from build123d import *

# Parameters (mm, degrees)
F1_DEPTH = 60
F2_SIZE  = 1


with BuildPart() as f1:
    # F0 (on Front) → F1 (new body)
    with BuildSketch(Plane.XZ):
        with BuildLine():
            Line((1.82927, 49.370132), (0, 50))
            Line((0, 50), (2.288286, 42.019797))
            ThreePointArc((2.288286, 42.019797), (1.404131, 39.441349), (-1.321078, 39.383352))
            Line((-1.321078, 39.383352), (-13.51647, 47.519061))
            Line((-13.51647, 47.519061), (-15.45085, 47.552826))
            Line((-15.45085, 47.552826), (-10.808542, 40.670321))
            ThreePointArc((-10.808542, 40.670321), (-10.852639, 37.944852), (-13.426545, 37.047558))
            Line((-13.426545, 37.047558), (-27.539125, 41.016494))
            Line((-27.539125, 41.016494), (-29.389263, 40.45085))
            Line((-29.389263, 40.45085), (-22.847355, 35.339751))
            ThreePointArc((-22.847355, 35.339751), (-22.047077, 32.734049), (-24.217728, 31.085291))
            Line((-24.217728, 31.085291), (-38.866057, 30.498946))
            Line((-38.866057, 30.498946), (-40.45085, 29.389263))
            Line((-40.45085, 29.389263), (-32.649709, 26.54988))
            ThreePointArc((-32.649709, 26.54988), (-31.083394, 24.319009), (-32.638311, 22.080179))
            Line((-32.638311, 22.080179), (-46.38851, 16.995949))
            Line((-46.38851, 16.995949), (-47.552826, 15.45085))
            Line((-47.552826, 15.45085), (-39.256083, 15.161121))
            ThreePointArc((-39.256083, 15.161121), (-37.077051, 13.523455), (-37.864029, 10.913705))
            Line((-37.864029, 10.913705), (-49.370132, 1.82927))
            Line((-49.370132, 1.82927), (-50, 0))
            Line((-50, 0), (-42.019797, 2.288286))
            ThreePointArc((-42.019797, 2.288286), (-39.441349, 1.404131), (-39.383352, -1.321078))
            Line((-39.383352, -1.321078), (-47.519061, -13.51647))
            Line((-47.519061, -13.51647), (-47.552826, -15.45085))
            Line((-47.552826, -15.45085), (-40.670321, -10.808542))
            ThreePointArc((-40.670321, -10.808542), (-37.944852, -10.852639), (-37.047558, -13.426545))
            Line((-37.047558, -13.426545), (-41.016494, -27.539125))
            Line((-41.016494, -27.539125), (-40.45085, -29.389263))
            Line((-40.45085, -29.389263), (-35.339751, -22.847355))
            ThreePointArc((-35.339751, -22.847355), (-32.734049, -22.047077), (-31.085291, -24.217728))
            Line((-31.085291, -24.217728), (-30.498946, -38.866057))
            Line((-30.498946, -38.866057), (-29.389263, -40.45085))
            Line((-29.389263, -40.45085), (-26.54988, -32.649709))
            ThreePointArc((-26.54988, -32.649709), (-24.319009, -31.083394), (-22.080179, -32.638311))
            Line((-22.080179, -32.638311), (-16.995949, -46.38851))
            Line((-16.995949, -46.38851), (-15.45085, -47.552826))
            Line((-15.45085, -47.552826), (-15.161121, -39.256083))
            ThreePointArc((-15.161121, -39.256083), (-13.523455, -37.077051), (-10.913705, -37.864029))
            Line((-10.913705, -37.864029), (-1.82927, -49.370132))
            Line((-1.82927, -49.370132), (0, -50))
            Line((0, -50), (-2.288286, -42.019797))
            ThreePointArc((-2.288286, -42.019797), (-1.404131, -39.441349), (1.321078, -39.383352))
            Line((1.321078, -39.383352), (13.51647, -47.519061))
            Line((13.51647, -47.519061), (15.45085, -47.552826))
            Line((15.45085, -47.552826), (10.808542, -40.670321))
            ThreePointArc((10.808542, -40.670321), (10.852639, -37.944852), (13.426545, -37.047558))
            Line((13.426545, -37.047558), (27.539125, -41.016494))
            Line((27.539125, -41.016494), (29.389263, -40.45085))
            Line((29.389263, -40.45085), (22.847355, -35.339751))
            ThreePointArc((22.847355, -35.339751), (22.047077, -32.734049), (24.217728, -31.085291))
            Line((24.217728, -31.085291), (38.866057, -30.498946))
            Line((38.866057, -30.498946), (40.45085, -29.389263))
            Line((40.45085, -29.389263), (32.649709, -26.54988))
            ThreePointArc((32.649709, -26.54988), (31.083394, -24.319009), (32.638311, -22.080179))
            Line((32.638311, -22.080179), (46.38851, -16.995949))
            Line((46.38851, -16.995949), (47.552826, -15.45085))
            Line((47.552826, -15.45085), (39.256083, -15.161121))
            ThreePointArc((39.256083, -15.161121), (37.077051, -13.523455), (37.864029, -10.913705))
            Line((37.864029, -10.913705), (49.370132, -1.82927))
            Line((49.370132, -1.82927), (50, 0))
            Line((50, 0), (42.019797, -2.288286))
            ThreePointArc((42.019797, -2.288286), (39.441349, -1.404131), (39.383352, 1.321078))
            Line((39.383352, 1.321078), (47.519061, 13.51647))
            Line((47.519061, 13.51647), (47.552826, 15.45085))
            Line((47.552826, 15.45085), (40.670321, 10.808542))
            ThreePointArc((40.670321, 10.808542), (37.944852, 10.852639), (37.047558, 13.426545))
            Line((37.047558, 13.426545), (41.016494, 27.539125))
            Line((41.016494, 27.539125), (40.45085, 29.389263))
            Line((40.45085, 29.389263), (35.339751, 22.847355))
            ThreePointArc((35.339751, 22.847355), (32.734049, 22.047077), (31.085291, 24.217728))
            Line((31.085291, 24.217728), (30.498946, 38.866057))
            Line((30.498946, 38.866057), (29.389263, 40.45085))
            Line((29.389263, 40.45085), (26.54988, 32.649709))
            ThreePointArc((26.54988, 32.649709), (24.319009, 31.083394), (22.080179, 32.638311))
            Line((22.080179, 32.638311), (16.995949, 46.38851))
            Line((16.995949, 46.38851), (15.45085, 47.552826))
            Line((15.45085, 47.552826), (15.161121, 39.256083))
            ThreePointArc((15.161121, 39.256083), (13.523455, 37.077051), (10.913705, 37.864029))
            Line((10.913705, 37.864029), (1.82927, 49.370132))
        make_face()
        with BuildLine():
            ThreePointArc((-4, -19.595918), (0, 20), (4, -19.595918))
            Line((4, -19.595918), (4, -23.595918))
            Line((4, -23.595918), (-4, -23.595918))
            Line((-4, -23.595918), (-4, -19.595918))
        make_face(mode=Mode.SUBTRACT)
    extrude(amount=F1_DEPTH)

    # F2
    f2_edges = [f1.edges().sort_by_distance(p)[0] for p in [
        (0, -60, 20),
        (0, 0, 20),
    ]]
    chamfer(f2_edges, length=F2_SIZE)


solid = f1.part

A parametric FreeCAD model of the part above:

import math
import FreeCAD as App
import Part
import Sketcher
Q = App.Units.Quantity


def edges_at(feature, points):
    """Names of the edges that pass closest to the given points."""
    edges = feature.Shape.Edges
    near = lambda p: min(range(len(edges)), key=lambda i: edges[i].distToShape(Part.Vertex(*p))[0])
    return sorted({f"Edge{near(p) + 1}" for p in points})

doc = App.newDocument("Part")
body = doc.addObject("PartDesign::Body", "Body")

sketch1 = body.newObject("Sketcher::SketchObject", "Sketch")
sketch1.AttachmentSupport = (doc.getObject("XZ_Plane"), [""])
sketch1.MapMode = "FlatFace"
sketch1.addGeometry(Part.LineSegment(App.Vector(1.8, 49.4, 0), App.Vector(0, 50, 0)), False)
sketch1.addGeometry(Part.LineSegment(App.Vector(0, 50, 0), App.Vector(2.3, 42, 0)), False)
sketch1.addGeometry(Part.ArcOfCircle(Part.Circle(App.Vector(0, 41.4, 0), App.Vector(0, 0, 1), 2.4), math.radians(-124), math.radians(16)), False)
sketch1.addGeometry(Part.LineSegment(App.Vector(-1.3, 39.4, 0), App.Vector(-13.5, 47.5, 0)), False)
sketch1.addGeometry(Part.LineSegment(App.Vector(-13.5, 47.5, 0), App.Vector(-15.5, 47.6, 0)), False)
sketch1.addGeometry(Part.LineSegment(App.Vector(-15.5, 47.6, 0), App.Vector(-10.8, 40.7, 0)), False)
sketch1.addGeometry(Part.ArcOfCircle(Part.Circle(App.Vector(-12.8, 39.3, 0), App.Vector(0, 0, 1), 2.4), math.radians(-106), math.radians(34)), False)
sketch1.addGeometry(Part.LineSegment(App.Vector(-13.4, 37, 0), App.Vector(-27.5, 41, 0)), False)
sketch1.addGeometry(Part.LineSegment(App.Vector(-27.5, 41, 0), App.Vector(-29.4, 40.5, 0)), False)
sketch1.addGeometry(Part.LineSegment(App.Vector(-29.4, 40.5, 0), App.Vector(-22.8, 35.3, 0)), False)
sketch1.addGeometry(Part.ArcOfCircle(Part.Circle(App.Vector(-24.3, 33.5, 0), App.Vector(0, 0, 1), 2.4), math.radians(-88), math.radians(52)), False)
sketch1.addGeometry(Part.LineSegment(App.Vector(-24.2, 31.1, 0), App.Vector(-38.9, 30.5, 0)), False)
sketch1.addGeometry(Part.LineSegment(App.Vector(-38.9, 30.5, 0), App.Vector(-40.5, 29.4, 0)), False)
sketch1.addGeometry(Part.LineSegment(App.Vector(-40.5, 29.4, 0), App.Vector(-32.6, 26.5, 0)), False)
sketch1.addGeometry(Part.ArcOfCircle(Part.Circle(App.Vector(-33.5, 24.3, 0), App.Vector(0, 0, 1), 2.4), math.radians(-70), math.radians(70)), False)
sketch1.addGeometry(Part.LineSegment(App.Vector(-32.6, 22.1, 0), App.Vector(-46.4, 17, 0)), False)
sketch1.addGeometry(Part.LineSegment(App.Vector(-46.4, 17, 0), App.Vector(-47.6, 15.5, 0)), False)
sketch1.addGeometry(Part.LineSegment(App.Vector(-47.6, 15.5, 0), App.Vector(-39.3, 15.2, 0)), False)
sketch1.addGeometry(Part.ArcOfCircle(Part.Circle(App.Vector(-39.3, 12.8, 0), App.Vector(0, 0, 1), 2.4), math.radians(-52), math.radians(88)), False)
sketch1.addGeometry(Part.LineSegment(App.Vector(-37.9, 10.9, 0), App.Vector(-49.4, 1.8, 0)), False)
sketch1.addGeometry(Part.LineSegment(App.Vector(-49.4, 1.8, 0), App.Vector(-50, 0, 0)), False)
sketch1.addGeometry(Part.LineSegment(App.Vector(-50, 0, 0), App.Vector(-42, 2.3, 0)), False)
sketch1.addGeometry(Part.ArcOfCircle(Part.Circle(App.Vector(-41.4, 0, 0), App.Vector(0, 0, 1), 2.4), math.radians(-34), math.radians(106)), False)
sketch1.addGeometry(Part.LineSegment(App.Vector(-39.4, -1.3, 0), App.Vector(-47.5, -13.5, 0)), False)
sketch1.addGeometry(Part.LineSegment(App.Vector(-47.5, -13.5, 0), App.Vector(-47.6, -15.5, 0)), False)
sketch1.addGeometry(Part.LineSegment(App.Vector(-47.6, -15.5, 0), App.Vector(-40.7, -10.8, 0)), False)
sketch1.addGeometry(Part.ArcOfCircle(Part.Circle(App.Vector(-39.3, -12.8, 0), App.Vector(0, 0, 1), 2.4), math.radians(-16), math.radians(124)), False)
sketch1.addGeometry(Part.LineSegment(App.Vector(-37, -13.4, 0), App.Vector(-41, -27.5, 0)), False)
sketch1.addGeometry(Part.LineSegment(App.Vector(-41, -27.5, 0), App.Vector(-40.5, -29.4, 0)), False)
sketch1.addGeometry(Part.LineSegment(App.Vector(-40.5, -29.4, 0), App.Vector(-35.3, -22.8, 0)), False)
sketch1.addGeometry(Part.ArcOfCircle(Part.Circle(App.Vector(-33.5, -24.3, 0), App.Vector(0, 0, 1), 2.4), math.radians(2), math.radians(142)), False)
sketch1.addGeometry(Part.LineSegment(App.Vector(-31.1, -24.2, 0), App.Vector(-30.5, -38.9, 0)), False)
sketch1.addGeometry(Part.LineSegment(App.Vector(-30.5, -38.9, 0), App.Vector(-29.4, -40.5, 0)), False)
sketch1.addGeometry(Part.LineSegment(App.Vector(-29.4, -40.5, 0), App.Vector(-26.5, -32.6, 0)), False)
sketch1.addGeometry(Part.ArcOfCircle(Part.Circle(App.Vector(-24.3, -33.5, 0), App.Vector(0, 0, 1), 2.4), math.radians(20), math.radians(160)), False)
sketch1.addGeometry(Part.LineSegment(App.Vector(-22.1, -32.6, 0), App.Vector(-17, -46.4, 0)), False)
sketch1.addGeometry(Part.LineSegment(App.Vector(-17, -46.4, 0), App.Vector(-15.5, -47.6, 0)), False)
sketch1.addGeometry(Part.LineSegment(App.Vector(-15.5, -47.6, 0), App.Vector(-15.2, -39.3, 0)), False)
sketch1.addGeometry(Part.ArcOfCircle(Part.Circle(App.Vector(-12.8, -39.3, 0), App.Vector(0, 0, 1), 2.4), math.radians(38), math.radians(178)), False)
sketch1.addGeometry(Part.LineSegment(App.Vector(-10.9, -37.9, 0), App.Vector(-1.8, -49.4, 0)), False)
sketch1.addGeometry(Part.LineSegment(App.Vector(-1.8, -49.4, 0), App.Vector(0, -50, 0)), False)
sketch1.addGeometry(Part.LineSegment(App.Vector(0, -50, 0), App.Vector(-2.3, -42, 0)), False)
sketch1.addGeometry(Part.ArcOfCircle(Part.Circle(App.Vector(0, -41.4, 0), App.Vector(0, 0, 1), 2.4), math.radians(56), math.radians(196)), False)
sketch1.addGeometry(Part.LineSegment(App.Vector(1.3, -39.4, 0), App.Vector(13.5, -47.5, 0)), False)
sketch1.addGeometry(Part.LineSegment(App.Vector(13.5, -47.5, 0), App.Vector(15.5, -47.6, 0)), False)
sketch1.addGeometry(Part.LineSegment(App.Vector(15.5, -47.6, 0), App.Vector(10.8, -40.7, 0)), False)
sketch1.addGeometry(Part.ArcOfCircle(Part.Circle(App.Vector(12.8, -39.3, 0), App.Vector(0, 0, 1), 2.4), math.radians(74), math.radians(214)), False)
sketch1.addGeometry(Part.LineSegment(App.Vector(13.4, -37, 0), App.Vector(27.5, -41, 0)), False)
sketch1.addGeometry(Part.LineSegment(App.Vector(27.5, -41, 0), App.Vector(29.4, -40.5, 0)), False)
sketch1.addGeometry(Part.LineSegment(App.Vector(29.4, -40.5, 0), App.Vector(22.8, -35.3, 0)), False)
sketch1.addGeometry(Part.ArcOfCircle(Part.Circle(App.Vector(24.3, -33.5, 0), App.Vector(0, 0, 1), 2.4), math.radians(92), math.radians(232)), False)
sketch1.addGeometry(Part.LineSegment(App.Vector(24.2, -31.1, 0), App.Vector(38.9, -30.5, 0)), False)
sketch1.addGeometry(Part.LineSegment(App.Vector(38.9, -30.5, 0), App.Vector(40.5, -29.4, 0)), False)
sketch1.addGeometry(Part.LineSegment(App.Vector(40.5, -29.4, 0), App.Vector(32.6, -26.5, 0)), False)
sketch1.addGeometry(Part.ArcOfCircle(Part.Circle(App.Vector(33.5, -24.3, 0), App.Vector(0, 0, 1), 2.4), math.radians(110), math.radians(250)), False)
sketch1.addGeometry(Part.LineSegment(App.Vector(32.6, -22.1, 0), App.Vector(46.4, -17, 0)), False)
sketch1.addGeometry(Part.LineSegment(App.Vector(46.4, -17, 0), App.Vector(47.6, -15.5, 0)), False)
sketch1.addGeometry(Part.LineSegment(App.Vector(47.6, -15.5, 0), App.Vector(39.3, -15.2, 0)), False)
sketch1.addGeometry(Part.ArcOfCircle(Part.Circle(App.Vector(39.3, -12.8, 0), App.Vector(0, 0, 1), 2.4), math.radians(128), math.radians(268)), False)
sketch1.addGeometry(Part.LineSegment(App.Vector(37.9, -10.9, 0), App.Vector(49.4, -1.8, 0)), False)
sketch1.addGeometry(Part.LineSegment(App.Vector(49.4, -1.8, 0), App.Vector(50, 0, 0)), False)
sketch1.addGeometry(Part.LineSegment(App.Vector(50, 0, 0), App.Vector(42, -2.3, 0)), False)
sketch1.addGeometry(Part.ArcOfCircle(Part.Circle(App.Vector(41.4, 0, 0), App.Vector(0, 0, 1), 2.4), math.radians(146), math.radians(286)), False)
sketch1.addGeometry(Part.LineSegment(App.Vector(39.4, 1.3, 0), App.Vector(47.5, 13.5, 0)), False)
sketch1.addGeometry(Part.LineSegment(App.Vector(47.5, 13.5, 0), App.Vector(47.6, 15.5, 0)), False)
sketch1.addGeometry(Part.LineSegment(App.Vector(47.6, 15.5, 0), App.Vector(40.7, 10.8, 0)), False)
sketch1.addGeometry(Part.ArcOfCircle(Part.Circle(App.Vector(39.3, 12.8, 0), App.Vector(0, 0, 1), 2.4), math.radians(164), math.radians(304)), False)
sketch1.addGeometry(Part.LineSegment(App.Vector(37, 13.4, 0), App.Vector(41, 27.5, 0)), False)
sketch1.addGeometry(Part.LineSegment(App.Vector(41, 27.5, 0), App.Vector(40.5, 29.4, 0)), False)
sketch1.addGeometry(Part.LineSegment(App.Vector(40.5, 29.4, 0), App.Vector(35.3, 22.8, 0)), False)
sketch1.addGeometry(Part.ArcOfCircle(Part.Circle(App.Vector(33.5, 24.3, 0), App.Vector(0, 0, 1), 2.4), math.radians(-178), math.radians(-38)), False)
sketch1.addGeometry(Part.LineSegment(App.Vector(31.1, 24.2, 0), App.Vector(30.5, 38.9, 0)), False)
sketch1.addGeometry(Part.LineSegment(App.Vector(30.5, 38.9, 0), App.Vector(29.4, 40.5, 0)), False)
sketch1.addGeometry(Part.LineSegment(App.Vector(29.4, 40.5, 0), App.Vector(26.5, 32.6, 0)), False)
sketch1.addGeometry(Part.ArcOfCircle(Part.Circle(App.Vector(24.3, 33.5, 0), App.Vector(0, 0, 1), 2.4), math.radians(-160), math.radians(-20)), False)
sketch1.addGeometry(Part.LineSegment(App.Vector(22.1, 32.6, 0), App.Vector(17, 46.4, 0)), False)
sketch1.addGeometry(Part.LineSegment(App.Vector(17, 46.4, 0), App.Vector(15.5, 47.6, 0)), False)
sketch1.addGeometry(Part.LineSegment(App.Vector(15.5, 47.6, 0), App.Vector(15.2, 39.3, 0)), False)
sketch1.addGeometry(Part.ArcOfCircle(Part.Circle(App.Vector(12.8, 39.3, 0), App.Vector(0, 0, 1), 2.4), math.radians(-142), math.radians(-2)), False)
sketch1.addGeometry(Part.LineSegment(App.Vector(10.9, 37.9, 0), App.Vector(1.8, 49.4, 0)), False)
sketch1.addGeometry(Part.LineSegment(App.Vector(-4, -23.6, 0), App.Vector(-4, -19.6, 0)), False)
sketch1.addGeometry(Part.ArcOfCircle(Part.Circle(App.Vector(0, 0, 0), App.Vector(0, 0, 1), 20), math.radians(-78), math.radians(258)), False)
sketch1.addGeometry(Part.LineSegment(App.Vector(4, -19.6, 0), App.Vector(4, -23.6, 0)), False)
sketch1.addGeometry(Part.LineSegment(App.Vector(4, -23.6, 0), App.Vector(-4, -23.6, 0)), False)
sketch1.addConstraint(Sketcher.Constraint("Coincident", 0, 2, 1, 1))
sketch1.addConstraint(Sketcher.Constraint("Tangent", 1, 2, 2, 2))
sketch1.addConstraint(Sketcher.Constraint("Tangent", 2, 1, 3, 1))
sketch1.addConstraint(Sketcher.Constraint("Coincident", 3, 2, 4, 1))
sketch1.addConstraint(Sketcher.Constraint("Coincident", 4, 2, 5, 1))
sketch1.addConstraint(Sketcher.Constraint("Tangent", 5, 2, 6, 2))
sketch1.addConstraint(Sketcher.Constraint("Tangent", 6, 1, 7, 1))
sketch1.addConstraint(Sketcher.Constraint("Coincident", 7, 2, 8, 1))
sketch1.addConstraint(Sketcher.Constraint("Coincident", 8, 2, 9, 1))
sketch1.addConstraint(Sketcher.Constraint("Tangent", 9, 2, 10, 2))
sketch1.addConstraint(Sketcher.Constraint("Tangent", 10, 1, 11, 1))
sketch1.addConstraint(Sketcher.Constraint("Coincident", 11, 2, 12, 1))
sketch1.addConstraint(Sketcher.Constraint("Coincident", 12, 2, 13, 1))
sketch1.addConstraint(Sketcher.Constraint("Tangent", 13, 2, 14, 2))
sketch1.addConstraint(Sketcher.Constraint("Tangent", 14, 1, 15, 1))
sketch1.addConstraint(Sketcher.Constraint("Coincident", 15, 2, 16, 1))
sketch1.addConstraint(Sketcher.Constraint("Coincident", 16, 2, 17, 1))
sketch1.addConstraint(Sketcher.Constraint("Tangent", 17, 2, 18, 2))
sketch1.addConstraint(Sketcher.Constraint("Tangent", 18, 1, 19, 1))
sketch1.addConstraint(Sketcher.Constraint("Coincident", 19, 2, 20, 1))
sketch1.addConstraint(Sketcher.Constraint("Coincident", 20, 2, 21, 1))
sketch1.addConstraint(Sketcher.Constraint("Tangent", 21, 2, 22, 2))
sketch1.addConstraint(Sketcher.Constraint("Tangent", 22, 1, 23, 1))
sketch1.addConstraint(Sketcher.Constraint("Coincident", 23, 2, 24, 1))
sketch1.addConstraint(Sketcher.Constraint("Coincident", 24, 2, 25, 1))
sketch1.addConstraint(Sketcher.Constraint("Tangent", 25, 2, 26, 2))
sketch1.addConstraint(Sketcher.Constraint("Tangent", 26, 1, 27, 1))
sketch1.addConstraint(Sketcher.Constraint("Coincident", 27, 2, 28, 1))
sketch1.addConstraint(Sketcher.Constraint("Coincident", 28, 2, 29, 1))
sketch1.addConstraint(Sketcher.Constraint("Tangent", 29, 2, 30, 2))
sketch1.addConstraint(Sketcher.Constraint("Tangent", 30, 1, 31, 1))
sketch1.addConstraint(Sketcher.Constraint("Coincident", 31, 2, 32, 1))
sketch1.addConstraint(Sketcher.Constraint("Coincident", 32, 2, 33, 1))
sketch1.addConstraint(Sketcher.Constraint("Tangent", 33, 2, 34, 2))
sketch1.addConstraint(Sketcher.Constraint("Tangent", 34, 1, 35, 1))
sketch1.addConstraint(Sketcher.Constraint("Coincident", 35, 2, 36, 1))
sketch1.addConstraint(Sketcher.Constraint("Coincident", 36, 2, 37, 1))
sketch1.addConstraint(Sketcher.Constraint("Tangent", 37, 2, 38, 2))
sketch1.addConstraint(Sketcher.Constraint("Tangent", 38, 1, 39, 1))
sketch1.addConstraint(Sketcher.Constraint("Coincident", 39, 2, 40, 1))
sketch1.addConstraint(Sketcher.Constraint("Coincident", 40, 2, 41, 1))
sketch1.addConstraint(Sketcher.Constraint("Tangent", 41, 2, 42, 2))
sketch1.addConstraint(Sketcher.Constraint("Tangent", 42, 1, 43, 1))
sketch1.addConstraint(Sketcher.Constraint("Coincident", 43, 2, 44, 1))
sketch1.addConstraint(Sketcher.Constraint("Coincident", 44, 2, 45, 1))
sketch1.addConstraint(Sketcher.Constraint("Tangent", 45, 2, 46, 2))
sketch1.addConstraint(Sketcher.Constraint("Tangent", 46, 1, 47, 1))
sketch1.addConstraint(Sketcher.Constraint("Coincident", 47, 2, 48, 1))
sketch1.addConstraint(Sketcher.Constraint("Coincident", 48, 2, 49, 1))
sketch1.addConstraint(Sketcher.Constraint("Tangent", 49, 2, 50, 2))
sketch1.addConstraint(Sketcher.Constraint("Tangent", 50, 1, 51, 1))
sketch1.addConstraint(Sketcher.Constraint("Coincident", 51, 2, 52, 1))
sketch1.addConstraint(Sketcher.Constraint("Coincident", 52, 2, 53, 1))
sketch1.addConstraint(Sketcher.Constraint("Tangent", 53, 2, 54, 2))
sketch1.addConstraint(Sketcher.Constraint("Tangent", 54, 1, 55, 1))
sketch1.addConstraint(Sketcher.Constraint("Coincident", 55, 2, 56, 1))
sketch1.addConstraint(Sketcher.Constraint("Coincident", 56, 2, 57, 1))
sketch1.addConstraint(Sketcher.Constraint("Tangent", 57, 2, 58, 2))
sketch1.addConstraint(Sketcher.Constraint("Tangent", 58, 1, 59, 1))
sketch1.addConstraint(Sketcher.Constraint("Coincident", 59, 2, 60, 1))
sketch1.addConstraint(Sketcher.Constraint("Coincident", 60, 2, 61, 1))
sketch1.addConstraint(Sketcher.Constraint("Tangent", 61, 2, 62, 2))
sketch1.addConstraint(Sketcher.Constraint("Tangent", 62, 1, 63, 1))
sketch1.addConstraint(Sketcher.Constraint("Coincident", 63, 2, 64, 1))
sketch1.addConstraint(Sketcher.Constraint("Coincident", 64, 2, 65, 1))
sketch1.addConstraint(Sketcher.Constraint("Tangent", 65, 2, 66, 2))
sketch1.addConstraint(Sketcher.Constraint("Tangent", 66, 1, 67, 1))
sketch1.addConstraint(Sketcher.Constraint("Coincident", 67, 2, 68, 1))
sketch1.addConstraint(Sketcher.Constraint("Coincident", 68, 2, 69, 1))
sketch1.addConstraint(Sketcher.Constraint("Tangent", 69, 2, 70, 2))
sketch1.addConstraint(Sketcher.Constraint("Tangent", 70, 1, 71, 1))
sketch1.addConstraint(Sketcher.Constraint("Coincident", 71, 2, 72, 1))
sketch1.addConstraint(Sketcher.Constraint("Coincident", 72, 2, 73, 1))
sketch1.addConstraint(Sketcher.Constraint("Tangent", 73, 2, 74, 2))
sketch1.addConstraint(Sketcher.Constraint("Tangent", 74, 1, 75, 1))
sketch1.addConstraint(Sketcher.Constraint("Coincident", 75, 2, 76, 1))
sketch1.addConstraint(Sketcher.Constraint("Coincident", 76, 2, 77, 1))
sketch1.addConstraint(Sketcher.Constraint("Tangent", 77, 2, 78, 2))
sketch1.addConstraint(Sketcher.Constraint("Tangent", 78, 1, 79, 1))
sketch1.addConstraint(Sketcher.Constraint("Coincident", 79, 2, 0, 1))
sketch1.addConstraint(Sketcher.Constraint("Coincident", 80, 2, 81, 2))
sketch1.addConstraint(Sketcher.Constraint("Coincident", 81, 1, 82, 1))
sketch1.addConstraint(Sketcher.Constraint("Coincident", 82, 2, 83, 1))
sketch1.addConstraint(Sketcher.Constraint("Coincident", 83, 2, 80, 1))
sketch1.addConstraint(Sketcher.Constraint("Vertical", 80))
sketch1.addConstraint(Sketcher.Constraint("Vertical", 82))
sketch1.addConstraint(Sketcher.Constraint("Horizontal", 83))
sketch1.addConstraint(Sketcher.Constraint("Coincident", 81, 3, -1, 1))
sketch1.addConstraint(Sketcher.Constraint("Equal", 2, 6))
sketch1.addConstraint(Sketcher.Constraint("Equal", 6, 10))
sketch1.addConstraint(Sketcher.Constraint("Equal", 10, 14))
sketch1.addConstraint(Sketcher.Constraint("Equal", 14, 18))
sketch1.addConstraint(Sketcher.Constraint("Equal", 18, 22))
sketch1.addConstraint(Sketcher.Constraint("Equal", 22, 26))
sketch1.addConstraint(Sketcher.Constraint("Equal", 26, 30))
sketch1.addConstraint(Sketcher.Constraint("Equal", 30, 34))
sketch1.addConstraint(Sketcher.Constraint("Equal", 34, 38))
sketch1.addConstraint(Sketcher.Constraint("Equal", 38, 42))
sketch1.addConstraint(Sketcher.Constraint("Equal", 42, 46))
sketch1.addConstraint(Sketcher.Constraint("Equal", 46, 50))
sketch1.addConstraint(Sketcher.Constraint("Equal", 50, 54))
sketch1.addConstraint(Sketcher.Constraint("Equal", 54, 58))
sketch1.addConstraint(Sketcher.Constraint("Equal", 58, 62))
sketch1.addConstraint(Sketcher.Constraint("Equal", 62, 66))
sketch1.addConstraint(Sketcher.Constraint("Equal", 66, 70))
sketch1.addConstraint(Sketcher.Constraint("Equal", 70, 74))
sketch1.addConstraint(Sketcher.Constraint("Equal", 74, 78))
sketch1.addConstraint(Sketcher.Constraint("Symmetric", 2, 3, 42, 3, -1, 1))
sketch1.addConstraint(Sketcher.Constraint("Symmetric", 6, 3, 46, 3, -1, 1))
sketch1.addConstraint(Sketcher.Constraint("Symmetric", 10, 3, 50, 3, -1, 1))
sketch1.addConstraint(Sketcher.Constraint("Symmetric", 14, 3, 54, 3, -1, 1))
sketch1.addConstraint(Sketcher.Constraint("Symmetric", 18, 3, 58, 3, -1, 1))
sketch1.addConstraint(Sketcher.Constraint("Symmetric", 22, 3, 62, 3, -1, 1))
sketch1.addConstraint(Sketcher.Constraint("Symmetric", 26, 3, 66, 3, -1, 1))
sketch1.addConstraint(Sketcher.Constraint("Symmetric", 30, 3, 70, 3, -1, 1))
sketch1.addConstraint(Sketcher.Constraint("Symmetric", 34, 3, 74, 3, -1, 1))
sketch1.addConstraint(Sketcher.Constraint("Symmetric", 38, 3, 78, 3, -1, 1))
sketch1.addConstraint(Sketcher.Constraint("Symmetric", 0, 2, 40, 2, -1, 1))
sketch1.addConstraint(Sketcher.Constraint("Symmetric", 3, 2, 43, 2, -1, 1))
sketch1.addConstraint(Sketcher.Constraint("Symmetric", 4, 2, 44, 2, -1, 1))
sketch1.addConstraint(Sketcher.Constraint("Symmetric", 7, 2, 47, 2, -1, 1))
sketch1.addConstraint(Sketcher.Constraint("Symmetric", 8, 2, 48, 2, -1, 1))
sketch1.addConstraint(Sketcher.Constraint("Symmetric", 11, 2, 51, 2, -1, 1))
sketch1.addConstraint(Sketcher.Constraint("Symmetric", 12, 2, 52, 2, -1, 1))
sketch1.addConstraint(Sketcher.Constraint("Symmetric", 15, 2, 55, 2, -1, 1))
sketch1.addConstraint(Sketcher.Constraint("Symmetric", 16, 2, 56, 2, -1, 1))
sketch1.addConstraint(Sketcher.Constraint("Symmetric", 19, 2, 59, 2, -1, 1))
sketch1.addConstraint(Sketcher.Constraint("Symmetric", 20, 2, 60, 2, -1, 1))
sketch1.addConstraint(Sketcher.Constraint("Symmetric", 23, 2, 63, 2, -1, 1))
sketch1.addConstraint(Sketcher.Constraint("Symmetric", 24, 2, 64, 2, -1, 1))
sketch1.addConstraint(Sketcher.Constraint("Symmetric", 27, 2, 67, 2, -1, 1))
sketch1.addConstraint(Sketcher.Constraint("Symmetric", 28, 2, 68, 2, -1, 1))
sketch1.addConstraint(Sketcher.Constraint("Symmetric", 31, 2, 71, 2, -1, 1))
sketch1.addConstraint(Sketcher.Constraint("Symmetric", 32, 2, 72, 2, -1, 1))
sketch1.addConstraint(Sketcher.Constraint("Symmetric", 35, 2, 75, 2, -1, 1))
sketch1.addConstraint(Sketcher.Constraint("Symmetric", 36, 2, 76, 2, -1, 1))
sketch1.addConstraint(Sketcher.Constraint("Symmetric", 39, 2, 79, 2, -1, 1))
sketch1.addConstraint(Sketcher.Constraint("Symmetric", 38, 3, 46, 3, -2))
sketch1.addConstraint(Sketcher.Constraint("Symmetric", 34, 3, 50, 3, -2))
sketch1.addConstraint(Sketcher.Constraint("Symmetric", 30, 3, 54, 3, -2))
sketch1.addConstraint(Sketcher.Constraint("Symmetric", 26, 3, 58, 3, -2))
sketch1.addConstraint(Sketcher.Constraint("Symmetric", 36, 2, 44, 2, -2))
sketch1.addConstraint(Sketcher.Constraint("Symmetric", 32, 2, 48, 2, -2))
sketch1.addConstraint(Sketcher.Constraint("Symmetric", 28, 2, 52, 2, -2))
sketch1.addConstraint(Sketcher.Constraint("Symmetric", 24, 2, 56, 2, -2))
sketch1.addConstraint(Sketcher.Constraint("PointOnObject", 2, 3, -2))
sketch1.addConstraint(Sketcher.Constraint("PointOnObject", 22, 3, -1))
sketch1.addConstraint(Sketcher.Constraint("PointOnObject", 0, 2, -2))
sketch1.addConstraint(Sketcher.Constraint("PointOnObject", 20, 2, -1))
sketch1.addConstraint(Sketcher.Constraint("Perpendicular", 0, 20))
sketch1.addConstraint(Sketcher.Constraint("Perpendicular", 1, 21))
sketch1.addConstraint(Sketcher.Constraint("Perpendicular", 3, 23))
sketch1.addConstraint(Sketcher.Constraint("Perpendicular", 4, 24))
sketch1.addConstraint(Sketcher.Constraint("Perpendicular", 5, 25))
sketch1.addConstraint(Sketcher.Constraint("Perpendicular", 7, 27))
sketch1.addConstraint(Sketcher.Constraint("Perpendicular", 8, 28))
sketch1.addConstraint(Sketcher.Constraint("Perpendicular", 9, 29))
sketch1.addConstraint(Sketcher.Constraint("Perpendicular", 11, 31))
sketch1.addConstraint(Sketcher.Constraint("Perpendicular", 12, 32))
sketch1.addConstraint(Sketcher.Constraint("Perpendicular", 13, 33))
sketch1.addConstraint(Sketcher.Constraint("Perpendicular", 15, 35))
sketch1.addConstraint(Sketcher.Constraint("Perpendicular", 16, 36))
sketch1.addConstraint(Sketcher.Constraint("Perpendicular", 17, 37))
sketch1.addConstraint(Sketcher.Constraint("Perpendicular", 19, 39))
sketch1.addConstraint(Sketcher.Constraint("Horizontal", 80, 2, 81, 1))
sketch1.addConstraint(Sketcher.Constraint("Equal", 0, 4))
sketch1.addConstraint(Sketcher.Constraint("Equal", 1, 5))
sketch1.addConstraint(Sketcher.Constraint("Equal", 3, 7))
sketch1.addConstraint(Sketcher.Constraint("Equal", 4, 8))
sketch1.addConstraint(Sketcher.Constraint("Equal", 5, 9))
sketch1.addConstraint(Sketcher.Constraint("Equal", 7, 11))
sketch1.addConstraint(Sketcher.Constraint("Equal", 8, 12))
sketch1.addConstraint(Sketcher.Constraint("Equal", 11, 15))
sketch1.addConstraint(Sketcher.Constraint("Equal", 12, 16))
sketch1.addConstraint(Sketcher.Constraint("Equal", 15, 19))
sketch1.addConstraint(Sketcher.Constraint("Equal", 16, 20))
sketch1.addConstraint(Sketcher.Constraint("Equal", 19, 23))
sketch1.addConstraint(Sketcher.Constraint("Equal", 23, 27))
sketch1.addConstraint(Sketcher.Constraint("Equal", 24, 28))
sketch1.addConstraint(Sketcher.Constraint("Equal", 27, 31))
sketch1.addConstraint(Sketcher.Constraint("Radius", 81, 20.0))
sketch1.addConstraint(Sketcher.Constraint("DistanceX", 83, 2, 83, 1, 8.0))
sketch1.addConstraint(Sketcher.Constraint("DistanceY", 80, 1, 80, 2, 4.0))
sketch1.addConstraint(Sketcher.Constraint("Angle", 0, Q("161.000005 deg")))
sketch1.addConstraint(Sketcher.Constraint("Angle", 1, Q("-74.000003 deg")))
sketch1.addConstraint(Sketcher.Constraint("Angle", 4, Q("178.999992 deg")))
sketch1.addConstraint(Sketcher.Constraint("Angle", 5, Q("-56.000001 deg")))
sketch1.addConstraint(Sketcher.Constraint("Angle", 8, Q("-162.999999 deg")))
sketch1.addConstraint(Sketcher.Constraint("Angle", 9, Q("-38.000002 deg")))
sketch1.addConstraint(Sketcher.Constraint("Angle", 16, Q("-127.000009 deg")))
sketch1.addConstraint(Sketcher.Constraint("DistanceY", -1, 1, 0, 2, 50.0))
sketch1.addConstraint(Sketcher.Constraint("Radius", 2, 2.380503))
sketch1.addConstraint(Sketcher.Constraint("Distance", 3, 14.66006))
sketch1.addConstraint(Sketcher.Constraint("DistanceX", 6, 3, -1, 1, 12.782068))
pad1 = body.newObject("PartDesign::Pad", "Pad")
pad1.Profile = sketch1
pad1.Length = 60
doc.recompute()

chamfer = body.newObject("PartDesign::Chamfer", "Chamfer")
chamfer.Base = (pad1, edges_at(pad1, [(0, -60, 20), (0, 0, 20)]))
chamfer.Size = 1

doc.recompute()
